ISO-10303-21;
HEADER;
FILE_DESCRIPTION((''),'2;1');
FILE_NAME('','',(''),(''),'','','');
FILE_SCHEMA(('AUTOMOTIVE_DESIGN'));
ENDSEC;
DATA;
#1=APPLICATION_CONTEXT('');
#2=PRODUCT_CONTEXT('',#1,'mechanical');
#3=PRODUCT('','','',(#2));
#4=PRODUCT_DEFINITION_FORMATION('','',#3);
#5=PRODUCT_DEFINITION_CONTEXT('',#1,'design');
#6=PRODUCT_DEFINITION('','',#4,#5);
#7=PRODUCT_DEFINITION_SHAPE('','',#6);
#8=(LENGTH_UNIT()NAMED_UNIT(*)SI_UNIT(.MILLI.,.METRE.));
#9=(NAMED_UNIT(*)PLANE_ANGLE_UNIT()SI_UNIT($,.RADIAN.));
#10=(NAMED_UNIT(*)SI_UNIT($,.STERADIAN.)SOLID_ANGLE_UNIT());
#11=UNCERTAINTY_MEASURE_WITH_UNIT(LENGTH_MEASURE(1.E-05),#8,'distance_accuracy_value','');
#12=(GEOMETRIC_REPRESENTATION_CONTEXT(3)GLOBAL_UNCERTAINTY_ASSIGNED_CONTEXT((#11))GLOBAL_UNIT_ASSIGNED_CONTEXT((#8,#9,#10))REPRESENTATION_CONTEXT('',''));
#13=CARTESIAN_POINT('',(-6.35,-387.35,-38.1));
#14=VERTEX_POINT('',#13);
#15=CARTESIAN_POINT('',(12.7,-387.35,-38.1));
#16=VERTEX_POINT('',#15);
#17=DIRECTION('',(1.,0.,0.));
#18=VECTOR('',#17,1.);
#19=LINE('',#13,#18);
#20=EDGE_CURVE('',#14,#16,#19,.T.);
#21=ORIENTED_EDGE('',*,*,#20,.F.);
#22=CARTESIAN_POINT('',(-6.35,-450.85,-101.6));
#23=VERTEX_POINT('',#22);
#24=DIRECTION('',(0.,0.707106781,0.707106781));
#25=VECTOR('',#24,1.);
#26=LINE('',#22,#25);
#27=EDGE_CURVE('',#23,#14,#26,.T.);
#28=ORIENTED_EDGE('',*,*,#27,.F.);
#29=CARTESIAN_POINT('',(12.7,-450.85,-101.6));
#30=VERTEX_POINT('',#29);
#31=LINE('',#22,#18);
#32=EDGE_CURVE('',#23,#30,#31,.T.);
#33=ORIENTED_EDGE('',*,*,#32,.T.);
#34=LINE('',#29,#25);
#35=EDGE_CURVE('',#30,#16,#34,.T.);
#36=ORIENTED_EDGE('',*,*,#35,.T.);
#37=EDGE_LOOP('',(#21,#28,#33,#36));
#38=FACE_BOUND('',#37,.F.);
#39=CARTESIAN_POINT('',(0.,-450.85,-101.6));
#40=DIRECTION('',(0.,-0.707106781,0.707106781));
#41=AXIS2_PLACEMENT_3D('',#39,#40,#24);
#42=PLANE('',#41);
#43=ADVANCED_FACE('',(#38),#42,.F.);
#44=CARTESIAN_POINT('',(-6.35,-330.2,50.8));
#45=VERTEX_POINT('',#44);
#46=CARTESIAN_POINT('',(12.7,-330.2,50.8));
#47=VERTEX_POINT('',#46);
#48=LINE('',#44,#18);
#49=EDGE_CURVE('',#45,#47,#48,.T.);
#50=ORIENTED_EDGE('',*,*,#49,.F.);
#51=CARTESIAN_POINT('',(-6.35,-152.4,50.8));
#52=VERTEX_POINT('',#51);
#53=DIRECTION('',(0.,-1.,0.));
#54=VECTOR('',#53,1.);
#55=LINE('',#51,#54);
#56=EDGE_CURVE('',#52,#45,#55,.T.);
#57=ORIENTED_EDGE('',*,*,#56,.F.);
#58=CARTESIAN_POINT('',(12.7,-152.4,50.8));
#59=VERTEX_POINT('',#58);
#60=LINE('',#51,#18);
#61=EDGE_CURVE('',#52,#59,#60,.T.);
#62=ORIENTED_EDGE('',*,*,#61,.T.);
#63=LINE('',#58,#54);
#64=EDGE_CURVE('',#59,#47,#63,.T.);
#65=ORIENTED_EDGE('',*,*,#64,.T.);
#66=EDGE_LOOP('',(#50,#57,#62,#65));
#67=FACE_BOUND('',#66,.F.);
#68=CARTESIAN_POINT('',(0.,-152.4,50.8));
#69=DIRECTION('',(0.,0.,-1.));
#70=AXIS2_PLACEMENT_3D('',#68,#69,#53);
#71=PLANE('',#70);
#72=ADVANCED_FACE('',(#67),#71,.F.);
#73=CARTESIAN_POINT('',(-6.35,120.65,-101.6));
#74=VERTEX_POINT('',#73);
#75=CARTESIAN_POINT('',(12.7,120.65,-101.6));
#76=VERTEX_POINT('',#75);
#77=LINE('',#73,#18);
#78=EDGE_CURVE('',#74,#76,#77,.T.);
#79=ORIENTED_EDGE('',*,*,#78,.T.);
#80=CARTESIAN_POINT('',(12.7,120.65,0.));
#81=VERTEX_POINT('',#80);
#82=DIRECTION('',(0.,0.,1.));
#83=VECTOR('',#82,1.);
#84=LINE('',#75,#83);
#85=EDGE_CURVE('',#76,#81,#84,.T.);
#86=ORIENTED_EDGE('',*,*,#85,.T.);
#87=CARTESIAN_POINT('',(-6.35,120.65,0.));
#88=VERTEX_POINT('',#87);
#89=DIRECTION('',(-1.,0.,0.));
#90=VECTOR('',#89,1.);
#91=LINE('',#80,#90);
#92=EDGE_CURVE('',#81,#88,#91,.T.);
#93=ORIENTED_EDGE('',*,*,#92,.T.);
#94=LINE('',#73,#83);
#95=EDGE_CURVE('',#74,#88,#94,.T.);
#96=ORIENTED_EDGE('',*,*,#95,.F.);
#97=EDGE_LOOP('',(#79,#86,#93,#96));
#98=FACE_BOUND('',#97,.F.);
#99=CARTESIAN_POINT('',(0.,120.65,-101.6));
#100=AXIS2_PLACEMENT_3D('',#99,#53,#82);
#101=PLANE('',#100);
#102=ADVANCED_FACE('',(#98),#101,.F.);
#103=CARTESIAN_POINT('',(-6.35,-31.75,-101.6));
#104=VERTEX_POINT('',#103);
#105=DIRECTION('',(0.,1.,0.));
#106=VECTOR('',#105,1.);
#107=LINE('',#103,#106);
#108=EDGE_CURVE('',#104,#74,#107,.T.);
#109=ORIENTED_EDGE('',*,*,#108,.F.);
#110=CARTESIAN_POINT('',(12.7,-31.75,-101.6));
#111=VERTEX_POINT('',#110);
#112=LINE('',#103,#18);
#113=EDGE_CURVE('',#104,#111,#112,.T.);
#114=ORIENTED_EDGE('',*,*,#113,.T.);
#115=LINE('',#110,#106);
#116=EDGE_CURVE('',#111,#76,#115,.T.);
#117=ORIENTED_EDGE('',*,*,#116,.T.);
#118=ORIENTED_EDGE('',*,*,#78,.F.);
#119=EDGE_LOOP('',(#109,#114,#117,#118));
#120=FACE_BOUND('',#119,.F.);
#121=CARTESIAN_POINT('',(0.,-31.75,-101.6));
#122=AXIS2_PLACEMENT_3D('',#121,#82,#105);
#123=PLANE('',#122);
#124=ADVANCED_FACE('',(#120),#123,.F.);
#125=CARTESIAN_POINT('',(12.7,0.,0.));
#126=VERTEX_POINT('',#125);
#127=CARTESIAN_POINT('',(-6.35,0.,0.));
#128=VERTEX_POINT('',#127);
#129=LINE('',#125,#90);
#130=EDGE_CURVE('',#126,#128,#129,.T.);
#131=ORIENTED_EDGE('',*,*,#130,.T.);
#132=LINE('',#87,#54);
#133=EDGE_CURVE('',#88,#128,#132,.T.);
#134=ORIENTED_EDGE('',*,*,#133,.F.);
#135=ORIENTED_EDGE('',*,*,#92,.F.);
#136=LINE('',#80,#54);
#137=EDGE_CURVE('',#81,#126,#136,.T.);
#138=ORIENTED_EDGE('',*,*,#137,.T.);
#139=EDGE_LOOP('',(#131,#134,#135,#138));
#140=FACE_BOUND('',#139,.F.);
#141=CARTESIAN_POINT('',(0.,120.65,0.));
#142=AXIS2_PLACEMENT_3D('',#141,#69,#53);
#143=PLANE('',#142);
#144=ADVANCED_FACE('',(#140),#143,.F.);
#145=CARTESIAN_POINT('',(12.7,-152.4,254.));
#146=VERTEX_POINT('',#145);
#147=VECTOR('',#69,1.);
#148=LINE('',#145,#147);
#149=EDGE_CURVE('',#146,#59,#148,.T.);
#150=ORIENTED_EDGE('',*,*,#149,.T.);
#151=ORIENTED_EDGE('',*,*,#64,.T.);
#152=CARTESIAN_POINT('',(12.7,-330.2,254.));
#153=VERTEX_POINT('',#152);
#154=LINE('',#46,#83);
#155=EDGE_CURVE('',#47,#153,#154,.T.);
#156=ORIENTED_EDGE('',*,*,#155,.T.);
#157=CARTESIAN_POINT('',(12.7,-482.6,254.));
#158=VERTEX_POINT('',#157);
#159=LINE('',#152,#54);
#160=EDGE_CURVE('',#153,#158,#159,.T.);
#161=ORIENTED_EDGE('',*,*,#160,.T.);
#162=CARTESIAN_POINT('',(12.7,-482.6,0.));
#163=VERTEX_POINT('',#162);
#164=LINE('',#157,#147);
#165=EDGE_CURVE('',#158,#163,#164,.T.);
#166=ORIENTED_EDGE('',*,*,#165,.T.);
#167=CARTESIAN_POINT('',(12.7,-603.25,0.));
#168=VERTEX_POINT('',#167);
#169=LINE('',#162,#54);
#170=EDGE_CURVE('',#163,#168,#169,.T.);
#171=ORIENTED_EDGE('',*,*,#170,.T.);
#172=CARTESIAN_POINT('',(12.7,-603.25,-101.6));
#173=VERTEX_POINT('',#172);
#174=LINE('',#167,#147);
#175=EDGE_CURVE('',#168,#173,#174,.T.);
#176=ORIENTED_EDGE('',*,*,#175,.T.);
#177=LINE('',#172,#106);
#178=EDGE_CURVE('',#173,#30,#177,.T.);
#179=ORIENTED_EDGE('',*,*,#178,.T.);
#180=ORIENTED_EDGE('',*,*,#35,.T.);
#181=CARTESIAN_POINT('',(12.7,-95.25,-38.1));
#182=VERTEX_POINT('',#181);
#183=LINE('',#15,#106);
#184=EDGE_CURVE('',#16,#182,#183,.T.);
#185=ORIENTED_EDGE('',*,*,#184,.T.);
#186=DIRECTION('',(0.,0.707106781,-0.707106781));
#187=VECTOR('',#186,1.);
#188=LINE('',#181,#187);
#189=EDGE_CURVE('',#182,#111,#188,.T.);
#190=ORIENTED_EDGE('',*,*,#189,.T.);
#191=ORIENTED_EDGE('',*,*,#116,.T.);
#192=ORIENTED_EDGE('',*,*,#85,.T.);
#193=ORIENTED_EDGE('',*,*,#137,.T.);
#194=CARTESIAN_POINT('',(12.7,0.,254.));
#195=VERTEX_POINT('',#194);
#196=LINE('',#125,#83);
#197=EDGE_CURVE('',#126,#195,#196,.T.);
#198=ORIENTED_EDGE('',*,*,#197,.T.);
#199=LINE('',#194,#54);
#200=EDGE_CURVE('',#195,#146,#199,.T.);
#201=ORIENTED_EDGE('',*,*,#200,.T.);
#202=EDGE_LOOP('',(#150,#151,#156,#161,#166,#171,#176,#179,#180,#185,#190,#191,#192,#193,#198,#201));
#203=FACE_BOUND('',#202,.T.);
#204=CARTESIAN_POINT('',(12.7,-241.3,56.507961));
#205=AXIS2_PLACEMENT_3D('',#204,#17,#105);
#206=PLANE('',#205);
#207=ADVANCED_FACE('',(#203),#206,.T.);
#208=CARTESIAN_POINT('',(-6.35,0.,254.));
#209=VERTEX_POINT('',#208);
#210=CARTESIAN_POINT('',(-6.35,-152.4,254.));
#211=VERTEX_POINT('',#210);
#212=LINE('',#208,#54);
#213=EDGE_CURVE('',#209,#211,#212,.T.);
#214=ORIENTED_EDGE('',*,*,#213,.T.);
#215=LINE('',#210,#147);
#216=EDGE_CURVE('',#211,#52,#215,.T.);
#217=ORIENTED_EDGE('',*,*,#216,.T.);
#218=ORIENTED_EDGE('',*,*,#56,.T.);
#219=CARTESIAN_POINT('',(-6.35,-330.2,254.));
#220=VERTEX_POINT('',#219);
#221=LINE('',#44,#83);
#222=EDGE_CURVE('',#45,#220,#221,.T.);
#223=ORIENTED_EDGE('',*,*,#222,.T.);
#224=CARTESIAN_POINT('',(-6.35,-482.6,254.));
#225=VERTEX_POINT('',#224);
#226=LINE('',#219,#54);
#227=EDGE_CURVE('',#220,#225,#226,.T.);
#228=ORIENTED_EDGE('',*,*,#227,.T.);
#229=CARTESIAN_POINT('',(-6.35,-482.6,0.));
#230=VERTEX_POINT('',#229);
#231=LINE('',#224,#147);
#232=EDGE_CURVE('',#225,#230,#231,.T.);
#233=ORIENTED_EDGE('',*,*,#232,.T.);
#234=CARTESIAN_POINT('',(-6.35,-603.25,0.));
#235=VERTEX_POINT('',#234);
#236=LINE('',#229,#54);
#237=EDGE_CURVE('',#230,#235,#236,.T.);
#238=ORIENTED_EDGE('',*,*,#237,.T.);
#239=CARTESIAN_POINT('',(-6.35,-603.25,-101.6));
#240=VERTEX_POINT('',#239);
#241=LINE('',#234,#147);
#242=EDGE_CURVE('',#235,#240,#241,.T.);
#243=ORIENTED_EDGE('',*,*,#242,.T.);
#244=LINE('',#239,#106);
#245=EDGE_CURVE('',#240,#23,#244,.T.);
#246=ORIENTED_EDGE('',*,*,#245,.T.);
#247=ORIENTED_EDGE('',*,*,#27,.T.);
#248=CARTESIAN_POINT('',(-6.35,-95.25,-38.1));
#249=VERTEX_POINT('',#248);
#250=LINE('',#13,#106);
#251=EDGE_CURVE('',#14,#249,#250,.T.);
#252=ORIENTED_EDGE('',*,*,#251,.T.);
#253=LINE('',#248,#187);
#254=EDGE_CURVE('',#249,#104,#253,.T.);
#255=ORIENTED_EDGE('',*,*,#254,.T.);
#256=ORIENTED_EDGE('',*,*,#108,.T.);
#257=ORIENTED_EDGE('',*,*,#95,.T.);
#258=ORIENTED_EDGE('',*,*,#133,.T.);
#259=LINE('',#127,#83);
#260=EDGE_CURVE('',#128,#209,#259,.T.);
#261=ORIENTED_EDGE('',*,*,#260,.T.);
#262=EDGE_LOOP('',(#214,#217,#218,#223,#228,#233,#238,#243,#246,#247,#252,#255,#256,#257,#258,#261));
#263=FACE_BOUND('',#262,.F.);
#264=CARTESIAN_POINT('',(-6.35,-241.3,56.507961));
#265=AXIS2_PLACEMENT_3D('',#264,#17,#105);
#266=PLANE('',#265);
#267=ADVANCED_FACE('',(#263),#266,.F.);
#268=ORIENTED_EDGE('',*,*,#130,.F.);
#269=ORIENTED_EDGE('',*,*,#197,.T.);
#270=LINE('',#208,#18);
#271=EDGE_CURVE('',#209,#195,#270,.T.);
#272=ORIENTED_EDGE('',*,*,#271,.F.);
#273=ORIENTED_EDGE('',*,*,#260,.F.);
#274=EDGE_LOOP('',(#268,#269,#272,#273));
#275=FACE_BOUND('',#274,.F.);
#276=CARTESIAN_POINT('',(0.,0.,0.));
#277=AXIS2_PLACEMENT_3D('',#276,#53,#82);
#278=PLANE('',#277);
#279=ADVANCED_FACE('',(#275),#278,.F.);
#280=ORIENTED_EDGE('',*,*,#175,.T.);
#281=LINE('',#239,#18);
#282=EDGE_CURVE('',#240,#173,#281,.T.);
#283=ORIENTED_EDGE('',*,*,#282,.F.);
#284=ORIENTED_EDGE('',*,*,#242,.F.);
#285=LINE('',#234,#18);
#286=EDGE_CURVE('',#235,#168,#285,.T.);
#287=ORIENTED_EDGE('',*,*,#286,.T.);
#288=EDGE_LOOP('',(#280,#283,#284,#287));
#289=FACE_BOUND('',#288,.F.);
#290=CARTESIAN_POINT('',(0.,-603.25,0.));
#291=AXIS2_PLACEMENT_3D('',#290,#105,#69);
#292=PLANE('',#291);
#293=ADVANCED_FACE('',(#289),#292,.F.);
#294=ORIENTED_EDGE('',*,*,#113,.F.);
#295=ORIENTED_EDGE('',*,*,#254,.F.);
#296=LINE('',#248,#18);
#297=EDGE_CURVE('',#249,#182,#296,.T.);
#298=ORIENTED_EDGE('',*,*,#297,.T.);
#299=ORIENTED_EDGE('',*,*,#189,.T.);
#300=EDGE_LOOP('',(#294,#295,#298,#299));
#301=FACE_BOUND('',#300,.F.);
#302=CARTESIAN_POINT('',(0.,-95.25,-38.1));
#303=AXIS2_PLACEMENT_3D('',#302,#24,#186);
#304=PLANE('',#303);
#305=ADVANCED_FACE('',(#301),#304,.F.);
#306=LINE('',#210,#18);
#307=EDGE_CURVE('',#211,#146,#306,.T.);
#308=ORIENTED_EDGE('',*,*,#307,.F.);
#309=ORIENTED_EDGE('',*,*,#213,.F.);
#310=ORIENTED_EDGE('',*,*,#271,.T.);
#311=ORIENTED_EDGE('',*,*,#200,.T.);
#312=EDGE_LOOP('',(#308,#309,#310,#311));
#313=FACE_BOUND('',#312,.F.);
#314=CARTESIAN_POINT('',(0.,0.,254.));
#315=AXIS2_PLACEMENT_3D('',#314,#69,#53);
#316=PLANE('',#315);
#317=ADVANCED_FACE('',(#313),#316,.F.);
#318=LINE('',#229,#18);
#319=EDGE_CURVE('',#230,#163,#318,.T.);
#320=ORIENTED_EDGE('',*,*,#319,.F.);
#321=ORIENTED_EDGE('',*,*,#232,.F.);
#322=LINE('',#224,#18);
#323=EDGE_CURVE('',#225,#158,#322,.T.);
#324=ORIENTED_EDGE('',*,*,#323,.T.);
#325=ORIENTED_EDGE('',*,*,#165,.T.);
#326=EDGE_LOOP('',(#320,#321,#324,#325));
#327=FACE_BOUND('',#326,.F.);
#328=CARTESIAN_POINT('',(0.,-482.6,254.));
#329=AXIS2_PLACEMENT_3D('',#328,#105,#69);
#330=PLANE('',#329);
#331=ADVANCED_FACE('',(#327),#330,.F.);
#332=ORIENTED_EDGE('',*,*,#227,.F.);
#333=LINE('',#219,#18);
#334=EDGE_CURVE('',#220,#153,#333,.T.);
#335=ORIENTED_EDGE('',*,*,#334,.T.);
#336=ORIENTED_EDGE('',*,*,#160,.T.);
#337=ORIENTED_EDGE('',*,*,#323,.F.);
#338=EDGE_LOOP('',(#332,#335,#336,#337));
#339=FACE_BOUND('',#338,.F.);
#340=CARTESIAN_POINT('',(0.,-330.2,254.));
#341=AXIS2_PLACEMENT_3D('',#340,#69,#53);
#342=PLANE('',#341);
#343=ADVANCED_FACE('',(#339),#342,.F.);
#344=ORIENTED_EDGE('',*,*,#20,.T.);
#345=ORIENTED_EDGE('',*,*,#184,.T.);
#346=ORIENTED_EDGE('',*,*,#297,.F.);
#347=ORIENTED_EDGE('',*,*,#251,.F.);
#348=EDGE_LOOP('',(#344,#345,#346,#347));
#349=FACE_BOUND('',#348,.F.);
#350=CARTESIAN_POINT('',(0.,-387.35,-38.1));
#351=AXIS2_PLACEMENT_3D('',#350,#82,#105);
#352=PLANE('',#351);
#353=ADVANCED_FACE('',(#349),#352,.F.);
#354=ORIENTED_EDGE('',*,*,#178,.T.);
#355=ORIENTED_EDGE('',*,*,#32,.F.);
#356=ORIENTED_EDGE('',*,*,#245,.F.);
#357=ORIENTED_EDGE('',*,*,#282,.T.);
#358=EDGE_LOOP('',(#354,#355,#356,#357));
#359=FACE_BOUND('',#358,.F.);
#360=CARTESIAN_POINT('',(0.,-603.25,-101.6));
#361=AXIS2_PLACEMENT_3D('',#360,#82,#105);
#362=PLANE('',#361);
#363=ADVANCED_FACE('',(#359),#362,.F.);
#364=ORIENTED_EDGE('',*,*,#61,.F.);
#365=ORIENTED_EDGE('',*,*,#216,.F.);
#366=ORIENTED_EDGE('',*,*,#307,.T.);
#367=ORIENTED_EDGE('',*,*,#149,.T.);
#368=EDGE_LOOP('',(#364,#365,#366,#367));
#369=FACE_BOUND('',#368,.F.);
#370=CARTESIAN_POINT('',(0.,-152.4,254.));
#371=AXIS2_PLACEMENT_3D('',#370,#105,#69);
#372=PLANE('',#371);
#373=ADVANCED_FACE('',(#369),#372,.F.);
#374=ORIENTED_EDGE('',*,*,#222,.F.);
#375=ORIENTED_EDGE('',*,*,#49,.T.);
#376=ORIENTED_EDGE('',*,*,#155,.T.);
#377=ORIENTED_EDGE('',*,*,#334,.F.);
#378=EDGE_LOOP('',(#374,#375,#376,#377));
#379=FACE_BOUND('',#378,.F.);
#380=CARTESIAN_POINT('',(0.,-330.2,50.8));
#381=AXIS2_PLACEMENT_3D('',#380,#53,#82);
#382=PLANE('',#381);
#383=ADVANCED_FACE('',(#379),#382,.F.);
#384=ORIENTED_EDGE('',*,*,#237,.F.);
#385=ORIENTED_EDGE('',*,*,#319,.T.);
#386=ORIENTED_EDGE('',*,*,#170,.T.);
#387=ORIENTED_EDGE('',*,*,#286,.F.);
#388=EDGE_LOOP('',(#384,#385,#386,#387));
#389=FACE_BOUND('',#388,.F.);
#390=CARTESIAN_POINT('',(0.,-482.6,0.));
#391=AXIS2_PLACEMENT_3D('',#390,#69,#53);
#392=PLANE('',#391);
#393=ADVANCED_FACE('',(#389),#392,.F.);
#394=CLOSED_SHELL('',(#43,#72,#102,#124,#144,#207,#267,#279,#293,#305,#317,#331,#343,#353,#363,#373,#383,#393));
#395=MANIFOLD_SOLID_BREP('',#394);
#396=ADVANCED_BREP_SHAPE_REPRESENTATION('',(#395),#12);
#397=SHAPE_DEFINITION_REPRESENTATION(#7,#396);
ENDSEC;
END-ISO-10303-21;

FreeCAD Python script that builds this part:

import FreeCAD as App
import Part
import Sketcher

V = App.Vector
Q = App.Units.Quantity

doc = App.newDocument("Part")
params = doc.addObject("Spreadsheet::Sheet", "Params")
for row, (alias, value) in enumerate([
    ("sketch1_width", "6 in"),
    ("sketch1_width2", "7 in"),
    ("sketch1_height", "10 in"),
    ("sketch1_height2", "8 in"),
    ("sketch1_height3", "4 in"),
    ("pad1_length", "0.5 in"),
    ("sketch2_width", "6 in"),
    ("sketch2_width2", "7 in"),
    ("sketch2_height", "10 in"),
    ("sketch2_height2", "8 in"),
    ("sketch2_height3", "4 in"),
    ("pad2_length", "0.5 in"),
], start=1):
    params.set(f"A{row}", alias)
    params.set(f"B{row}", "=" + value)
    params.setAlias(f"B{row}", alias)

body = doc.addObject("PartDesign::Body", "Body")

sketch1 = doc.addObject("Sketcher::SketchObject", "Sketch")
body.addObject(sketch1)
sketch1.AttachmentSupport = (doc.YZ_Plane, [""])
sketch1.MapMode = "FlatFace"
sketch1.addGeometry([
    Part.LineSegment(V(0, 0, 0), V(0, 254, 0)),
    Part.LineSegment(V(0, 254, 0), V(-152, 254, 0)),
    Part.LineSegment(V(-152, 254, 0), V(-152, 51, 0)),
    Part.LineSegment(V(-152, 51, 0), V(-330, 51, 0)),
    Part.LineSegment(V(-330, 51, 0), V(-330, 254, 0)),
    Part.LineSegment(V(-330, 254, 0), V(-483, 254, 0)),
    Part.LineSegment(V(-483, 254, 0), V(-483, 0, 0)),
    Part.LineSegment(V(-483, 0, 0), V(-603, 0, 0)),
    Part.LineSegment(V(-603, 0, 0), V(-603, -102, 0)),
    Part.LineSegment(V(-603, -102, 0), V(-451, -102, 0)),
    Part.LineSegment(V(-451, -102, 0), V(-387, -38, 0)),
    Part.LineSegment(V(-387, -38, 0), V(-95, -38, 0)),
    Part.LineSegment(V(-95, -38, 0), V(-32, -102, 0)),
    Part.LineSegment(V(-32, -102, 0), V(121, -102, 0)),
    Part.LineSegment(V(121, -102, 0), V(121, 0, 0)),
    Part.LineSegment(V(121, 0, 0), V(0, 0, 0)),
], False)
sketch1.addConstraint([
    Sketcher.Constraint("Coincident", 0, 2, 1, 1),
    Sketcher.Constraint("Coincident", 1, 2, 2, 1),
    Sketcher.Constraint("Coincident", 2, 2, 3, 1),
    Sketcher.Constraint("Coincident", 3, 2, 4, 1),
    Sketcher.Constraint("Coincident", 4, 2, 5, 1),
    Sketcher.Constraint("Coincident", 5, 2, 6, 1),
    Sketcher.Constraint("Coincident", 6, 2, 7, 1),
    Sketcher.Constraint("Coincident", 7, 2, 8, 1),
    Sketcher.Constraint("Coincident", 8, 2, 9, 1),
    Sketcher.Constraint("Coincident", 9, 2, 10, 1),
    Sketcher.Constraint("Coincident", 10, 2, 11, 1),
    Sketcher.Constraint("Coincident", 11, 2, 12, 1),
    Sketcher.Constraint("Coincident", 12, 2, 13, 1),
    Sketcher.Constraint("Coincident", 13, 2, 14, 1),
    Sketcher.Constraint("Coincident", 14, 2, 15, 1),
    Sketcher.Constraint("Coincident", 15, 2, 0, 1),
    Sketcher.Constraint("Vertical", 0),
    Sketcher.Constraint("Horizontal", 1),
    Sketcher.Constraint("Vertical", 2),
    Sketcher.Constraint("Horizontal", 3),
    Sketcher.Constraint("Vertical", 4),
    Sketcher.Constraint("Horizontal", 5),
    Sketcher.Constraint("Vertical", 6),
    Sketcher.Constraint("Horizontal", 7),
    Sketcher.Constraint("Vertical", 8),
    Sketcher.Constraint("Horizontal", 9),
    Sketcher.Constraint("Horizontal", 11),
    Sketcher.Constraint("Horizontal", 13),
    Sketcher.Constraint("Vertical", 14),
    Sketcher.Constraint("Horizontal", 15),
    Sketcher.Constraint("Coincident", 15, 2, -1, 1),
    Sketcher.Constraint("PointOnObject", 6, 2, -1),
    Sketcher.Constraint("Perpendicular", 10, 12),
    Sketcher.Constraint("Horizontal", 1, 2, 4, 2),
    Sketcher.Constraint("Horizontal", 9, 2, 12, 2),
    Sketcher.Constraint("Equal", 1, 5),
    Sketcher.Constraint("Equal", 5, 9),
    Sketcher.Constraint("Equal", 9, 13),
    Sketcher.Constraint("Equal", 7, 15),
    Sketcher.Constraint("Equal", 10, 12),
    Sketcher.Constraint("DistanceX", 1, 2, 1, 1, Q("6 in")),
    Sketcher.Constraint("DistanceX", 3, 2, 3, 1, Q("7 in")),
    Sketcher.Constraint("DistanceY", 0, 1, 0, 2, Q("10 in")),
    Sketcher.Constraint("DistanceY", 2, 2, 2, 1, Q("8 in")),
    Sketcher.Constraint("DistanceY", 8, 2, 8, 1, Q("4 in")),
    Sketcher.Constraint("DistanceX", 11, 1, 11, 2, Q("11.5 in")),
    Sketcher.Constraint("DistanceX", 10, 2, 12, 2, Q("14 in")),
])
sketch1.setExpression("Constraints[40]", "Params.sketch1_width")
sketch1.setExpression("Constraints[41]", "Params.sketch1_width2")
sketch1.setExpression("Constraints[42]", "Params.sketch1_height")
sketch1.setExpression("Constraints[43]", "Params.sketch1_height2")
sketch1.setExpression("Constraints[44]", "Params.sketch1_height3")
pad1 = doc.addObject("PartDesign::Pad", "Pad")
body.addObject(pad1)
pad1.Profile = sketch1
pad1.setExpression("Length", "Params.pad1_length")
pad1.Midplane = True

sketch2 = doc.addObject("Sketcher::SketchObject", "Sketch001")
body.addObject(sketch2)
sketch2.AttachmentSupport = (doc.YZ_Plane, [""])
sketch2.MapMode = "FlatFace"
sketch2.addGeometry([
    Part.LineSegment(V(0, 0, 0), V(0, 254, 0)),
    Part.LineSegment(V(0, 254, 0), V(-152, 254, 0)),
    Part.LineSegment(V(-152, 254, 0), V(-152, 51, 0)),
    Part.LineSegment(V(-152, 51, 0), V(-330, 51, 0)),
    Part.LineSegment(V(-330, 51, 0), V(-330, 254, 0)),
    Part.LineSegment(V(-330, 254, 0), V(-483, 254, 0)),
    Part.LineSegment(V(-483, 254, 0), V(-483, 0, 0)),
    Part.LineSegment(V(-483, 0, 0), V(-603, 0, 0)),
    Part.LineSegment(V(-603, 0, 0), V(-603, -102, 0)),
    Part.LineSegment(V(-603, -102, 0), V(-451, -102, 0)),
    Part.LineSegment(V(-451, -102, 0), V(-387, -38, 0)),
    Part.LineSegment(V(-387, -38, 0), V(-95, -38, 0)),
    Part.LineSegment(V(-95, -38, 0), V(-32, -102, 0)),
    Part.LineSegment(V(-32, -102, 0), V(121, -102, 0)),
    Part.LineSegment(V(121, -102, 0), V(121, 0, 0)),
    Part.LineSegment(V(121, 0, 0), V(0, 0, 0)),
], False)
sketch2.addConstraint([
    Sketcher.Constraint("Coincident", 0, 2, 1, 1),
    Sketcher.Constraint("Coincident", 1, 2, 2, 1),
    Sketcher.Constraint("Coincident", 2, 2, 3, 1),
    Sketcher.Constraint("Coincident", 3, 2, 4, 1),
    Sketcher.Constraint("Coincident", 4, 2, 5, 1),
    Sketcher.Constraint("Coincident", 5, 2, 6, 1),
    Sketcher.Constraint("Coincident", 6, 2, 7, 1),
    Sketcher.Constraint("Coincident", 7, 2, 8, 1),
    Sketcher.Constraint("Coincident", 8, 2, 9, 1),
    Sketcher.Constraint("Coincident", 9, 2, 10, 1),
    Sketcher.Constraint("Coincident", 10, 2, 11, 1),
    Sketcher.Constraint("Coincident", 11, 2, 12, 1),
    Sketcher.Constraint("Coincident", 12, 2, 13, 1),
    Sketcher.Constraint("Coincident", 13, 2, 14, 1),
    Sketcher.Constraint("Coincident", 14, 2, 15, 1),
    Sketcher.Constraint("Coincident", 15, 2, 0, 1),
    Sketcher.Constraint("Vertical", 0),
    Sketcher.Constraint("Horizontal", 1),
    Sketcher.Constraint("Vertical", 2),
    Sketcher.Constraint("Horizontal", 3),
    Sketcher.Constraint("Vertical", 4),
    Sketcher.Constraint("Horizontal", 5),
    Sketcher.Constraint("Vertical", 6),
    Sketcher.Constraint("Horizontal", 7),
    Sketcher.Constraint("Vertical", 8),
    Sketcher.Constraint("Horizontal", 9),
    Sketcher.Constraint("Horizontal", 11),
    Sketcher.Constraint("Horizontal", 13),
    Sketcher.Constraint("Vertical", 14),
    Sketcher.Constraint("Horizontal", 15),
    Sketcher.Constraint("Coincident", 15, 2, -1, 1),
    Sketcher.Constraint("PointOnObject", 6, 2, -1),
    Sketcher.Constraint("Perpendicular", 10, 12),
    Sketcher.Constraint("Horizontal", 1, 2, 4, 2),
    Sketcher.Constraint("Horizontal", 9, 2, 12, 2),
    Sketcher.Constraint("Equal", 1, 5),
    Sketcher.Constraint("Equal", 5, 9),
    Sketcher.Constraint("Equal", 9, 13),
    Sketcher.Constraint("Equal", 7, 15),
    Sketcher.Constraint("Equal", 10, 12),
    Sketcher.Constraint("DistanceX", 1, 2, 1, 1, Q("6 in")),
    Sketcher.Constraint("DistanceX", 3, 2, 3, 1, Q("7 in")),
    Sketcher.Constraint("DistanceY", 0, 1, 0, 2, Q("10 in")),
    Sketcher.Constraint("DistanceY", 2, 2, 2, 1, Q("8 in")),
    Sketcher.Constraint("DistanceY", 8, 2, 8, 1, Q("4 in")),
    Sketcher.Constraint("DistanceX", 11, 1, 11, 2, Q("11.5 in")),
    Sketcher.Constraint("DistanceX", 10, 2, 12, 2, Q("14 in")),
])
sketch2.setExpression("Constraints[40]", "Params.sketch2_width")
sketch2.setExpression("Constraints[41]", "Params.sketch2_width2")
sketch2.setExpression("Constraints[42]", "Params.sketch2_height")
sketch2.setExpression("Constraints[43]", "Params.sketch2_height2")
sketch2.setExpression("Constraints[44]", "Params.sketch2_height3")
pad2 = doc.addObject("PartDesign::Pad", "Pad001")
body.addObject(pad2)
pad2.Profile = sketch2
pad2.setExpression("Length", "Params.pad2_length")

doc.recompute()
